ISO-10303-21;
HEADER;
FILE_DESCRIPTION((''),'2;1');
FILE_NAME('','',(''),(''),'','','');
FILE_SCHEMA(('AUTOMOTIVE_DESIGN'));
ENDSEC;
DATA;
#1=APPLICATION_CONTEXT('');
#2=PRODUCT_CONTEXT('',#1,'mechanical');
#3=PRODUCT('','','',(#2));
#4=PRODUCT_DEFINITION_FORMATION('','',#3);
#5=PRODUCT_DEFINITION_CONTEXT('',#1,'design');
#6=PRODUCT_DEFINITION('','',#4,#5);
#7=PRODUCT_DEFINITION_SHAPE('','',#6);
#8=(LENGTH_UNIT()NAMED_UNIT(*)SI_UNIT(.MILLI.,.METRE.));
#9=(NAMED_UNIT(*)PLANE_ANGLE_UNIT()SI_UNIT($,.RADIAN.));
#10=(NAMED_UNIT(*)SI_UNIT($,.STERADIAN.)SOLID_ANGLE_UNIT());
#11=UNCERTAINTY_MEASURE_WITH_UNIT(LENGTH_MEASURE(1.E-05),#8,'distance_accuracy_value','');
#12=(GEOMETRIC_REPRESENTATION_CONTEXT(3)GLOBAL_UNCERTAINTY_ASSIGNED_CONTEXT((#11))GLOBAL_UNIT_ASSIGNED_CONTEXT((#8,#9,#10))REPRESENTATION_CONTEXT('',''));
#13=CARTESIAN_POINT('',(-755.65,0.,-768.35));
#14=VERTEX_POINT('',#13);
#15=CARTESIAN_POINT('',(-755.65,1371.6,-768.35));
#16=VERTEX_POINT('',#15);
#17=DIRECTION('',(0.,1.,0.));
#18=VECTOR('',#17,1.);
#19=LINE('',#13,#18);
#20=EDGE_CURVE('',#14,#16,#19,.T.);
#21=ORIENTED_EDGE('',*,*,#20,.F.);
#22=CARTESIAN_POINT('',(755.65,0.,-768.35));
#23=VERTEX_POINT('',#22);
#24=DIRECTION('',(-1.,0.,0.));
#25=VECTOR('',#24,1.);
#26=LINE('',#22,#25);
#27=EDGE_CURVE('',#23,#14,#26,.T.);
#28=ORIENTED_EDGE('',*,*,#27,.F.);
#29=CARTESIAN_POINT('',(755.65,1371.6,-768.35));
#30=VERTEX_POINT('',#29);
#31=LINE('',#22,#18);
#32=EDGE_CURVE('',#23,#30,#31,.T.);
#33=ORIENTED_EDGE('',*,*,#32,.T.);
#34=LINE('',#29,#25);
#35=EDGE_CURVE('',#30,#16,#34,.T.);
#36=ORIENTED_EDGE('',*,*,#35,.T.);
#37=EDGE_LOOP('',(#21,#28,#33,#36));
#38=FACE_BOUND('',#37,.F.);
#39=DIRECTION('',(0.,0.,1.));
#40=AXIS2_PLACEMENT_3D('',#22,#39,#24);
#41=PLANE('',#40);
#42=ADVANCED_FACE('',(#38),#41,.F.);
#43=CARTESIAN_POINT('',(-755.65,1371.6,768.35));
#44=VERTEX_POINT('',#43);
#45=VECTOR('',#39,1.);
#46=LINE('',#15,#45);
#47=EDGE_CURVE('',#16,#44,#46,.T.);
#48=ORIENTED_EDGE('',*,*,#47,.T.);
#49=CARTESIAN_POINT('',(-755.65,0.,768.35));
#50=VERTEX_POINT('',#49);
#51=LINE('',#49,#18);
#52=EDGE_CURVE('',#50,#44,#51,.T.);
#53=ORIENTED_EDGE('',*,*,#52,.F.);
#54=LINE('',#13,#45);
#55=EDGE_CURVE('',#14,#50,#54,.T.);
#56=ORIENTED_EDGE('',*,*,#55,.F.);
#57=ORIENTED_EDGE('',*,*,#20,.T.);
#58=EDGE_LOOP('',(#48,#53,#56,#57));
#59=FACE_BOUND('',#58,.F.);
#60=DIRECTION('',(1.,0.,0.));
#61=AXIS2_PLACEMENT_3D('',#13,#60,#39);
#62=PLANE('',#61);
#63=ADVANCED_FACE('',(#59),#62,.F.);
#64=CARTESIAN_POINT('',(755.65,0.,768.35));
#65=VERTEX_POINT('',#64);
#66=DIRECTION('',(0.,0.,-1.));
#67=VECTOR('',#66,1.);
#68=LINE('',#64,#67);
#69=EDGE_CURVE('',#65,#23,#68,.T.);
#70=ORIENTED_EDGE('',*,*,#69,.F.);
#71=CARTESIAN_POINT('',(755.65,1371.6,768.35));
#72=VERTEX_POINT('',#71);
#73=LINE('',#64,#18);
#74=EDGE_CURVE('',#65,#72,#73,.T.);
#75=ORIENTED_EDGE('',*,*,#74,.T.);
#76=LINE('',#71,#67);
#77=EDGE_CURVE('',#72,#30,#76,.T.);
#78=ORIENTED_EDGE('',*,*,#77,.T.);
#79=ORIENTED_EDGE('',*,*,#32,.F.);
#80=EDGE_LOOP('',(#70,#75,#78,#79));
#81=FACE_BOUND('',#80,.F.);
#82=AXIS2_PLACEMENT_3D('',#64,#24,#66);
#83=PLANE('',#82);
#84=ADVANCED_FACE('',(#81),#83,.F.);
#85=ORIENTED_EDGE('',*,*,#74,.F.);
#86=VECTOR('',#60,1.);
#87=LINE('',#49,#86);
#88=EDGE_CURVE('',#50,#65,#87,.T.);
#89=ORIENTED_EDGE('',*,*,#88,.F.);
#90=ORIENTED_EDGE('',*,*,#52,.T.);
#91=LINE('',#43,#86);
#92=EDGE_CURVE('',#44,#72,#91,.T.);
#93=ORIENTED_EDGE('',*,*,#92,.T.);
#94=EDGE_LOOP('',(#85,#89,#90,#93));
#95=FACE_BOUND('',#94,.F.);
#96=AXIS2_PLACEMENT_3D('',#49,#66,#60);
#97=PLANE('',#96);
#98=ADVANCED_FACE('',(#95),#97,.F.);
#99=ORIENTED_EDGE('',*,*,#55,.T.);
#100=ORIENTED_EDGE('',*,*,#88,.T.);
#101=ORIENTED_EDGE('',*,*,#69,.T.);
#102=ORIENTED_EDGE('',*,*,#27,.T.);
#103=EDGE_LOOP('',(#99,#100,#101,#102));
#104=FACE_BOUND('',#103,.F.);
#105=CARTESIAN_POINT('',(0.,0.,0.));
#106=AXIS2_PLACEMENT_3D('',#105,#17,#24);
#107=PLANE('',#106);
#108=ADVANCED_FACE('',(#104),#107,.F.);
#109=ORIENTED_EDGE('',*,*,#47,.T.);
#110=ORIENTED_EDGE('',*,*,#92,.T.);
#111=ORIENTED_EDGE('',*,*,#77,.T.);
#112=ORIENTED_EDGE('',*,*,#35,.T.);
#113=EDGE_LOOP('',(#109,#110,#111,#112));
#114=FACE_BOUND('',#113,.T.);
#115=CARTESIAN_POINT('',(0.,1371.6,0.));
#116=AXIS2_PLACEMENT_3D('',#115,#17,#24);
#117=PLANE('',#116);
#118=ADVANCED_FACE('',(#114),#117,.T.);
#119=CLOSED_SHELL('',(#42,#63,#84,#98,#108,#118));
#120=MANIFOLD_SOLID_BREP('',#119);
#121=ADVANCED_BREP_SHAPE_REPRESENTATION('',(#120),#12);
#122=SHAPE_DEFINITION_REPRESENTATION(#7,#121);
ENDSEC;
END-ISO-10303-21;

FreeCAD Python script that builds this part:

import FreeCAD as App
import Part
import Sketcher
Q = App.Units.Quantity


def add_polygon(sketch, points):
    """Adds a closed chain of lines whose ends are joined by coincident constraints."""
    first, n = sketch.GeometryCount, len(points)
    for a, b in zip(points, points[1:] + points[:1]):
        sketch.addGeometry(Part.LineSegment(App.Vector(*a, 0), App.Vector(*b, 0)), False)
    for i in range(n):
        sketch.addConstraint(Sketcher.Constraint("Coincident", first + i, 2, first + (i + 1) % n, 1))

doc = App.newDocument("Part")
body = doc.addObject("PartDesign::Body", "Body")

sketch1 = doc.addObject("Sketcher::SketchObject", "Sketch")
body.addObject(sketch1)
sketch1.AttachmentSupport = (doc.XZ_Plane, [""])
sketch1.MapMode = "FlatFace"
add_polygon(sketch1, [(-756, -768), (-756, 768), (756, 768), (756, -768)])
sketch1.addConstraint([
    Sketcher.Constraint("Vertical", 0),
    Sketcher.Constraint("Horizontal", 1),
    Sketcher.Constraint("Vertical", 2),
    Sketcher.Constraint("Horizontal", 3),
    Sketcher.Constraint("Symmetric", 0, 2, 2, 2, -1, 1),
    Sketcher.Constraint("DistanceX", 1, 1, 1, 2, Q("59.5 in")),
    Sketcher.Constraint("DistanceY", 0, 1, 0, 2, Q("60.5 in")),
])
pad1 = doc.addObject("PartDesign::Pad", "Pad")
body.addObject(pad1)
pad1.Profile = sketch1
pad1.Length = Q("54 in")
pad1.Reversed = True

doc.recompute()
